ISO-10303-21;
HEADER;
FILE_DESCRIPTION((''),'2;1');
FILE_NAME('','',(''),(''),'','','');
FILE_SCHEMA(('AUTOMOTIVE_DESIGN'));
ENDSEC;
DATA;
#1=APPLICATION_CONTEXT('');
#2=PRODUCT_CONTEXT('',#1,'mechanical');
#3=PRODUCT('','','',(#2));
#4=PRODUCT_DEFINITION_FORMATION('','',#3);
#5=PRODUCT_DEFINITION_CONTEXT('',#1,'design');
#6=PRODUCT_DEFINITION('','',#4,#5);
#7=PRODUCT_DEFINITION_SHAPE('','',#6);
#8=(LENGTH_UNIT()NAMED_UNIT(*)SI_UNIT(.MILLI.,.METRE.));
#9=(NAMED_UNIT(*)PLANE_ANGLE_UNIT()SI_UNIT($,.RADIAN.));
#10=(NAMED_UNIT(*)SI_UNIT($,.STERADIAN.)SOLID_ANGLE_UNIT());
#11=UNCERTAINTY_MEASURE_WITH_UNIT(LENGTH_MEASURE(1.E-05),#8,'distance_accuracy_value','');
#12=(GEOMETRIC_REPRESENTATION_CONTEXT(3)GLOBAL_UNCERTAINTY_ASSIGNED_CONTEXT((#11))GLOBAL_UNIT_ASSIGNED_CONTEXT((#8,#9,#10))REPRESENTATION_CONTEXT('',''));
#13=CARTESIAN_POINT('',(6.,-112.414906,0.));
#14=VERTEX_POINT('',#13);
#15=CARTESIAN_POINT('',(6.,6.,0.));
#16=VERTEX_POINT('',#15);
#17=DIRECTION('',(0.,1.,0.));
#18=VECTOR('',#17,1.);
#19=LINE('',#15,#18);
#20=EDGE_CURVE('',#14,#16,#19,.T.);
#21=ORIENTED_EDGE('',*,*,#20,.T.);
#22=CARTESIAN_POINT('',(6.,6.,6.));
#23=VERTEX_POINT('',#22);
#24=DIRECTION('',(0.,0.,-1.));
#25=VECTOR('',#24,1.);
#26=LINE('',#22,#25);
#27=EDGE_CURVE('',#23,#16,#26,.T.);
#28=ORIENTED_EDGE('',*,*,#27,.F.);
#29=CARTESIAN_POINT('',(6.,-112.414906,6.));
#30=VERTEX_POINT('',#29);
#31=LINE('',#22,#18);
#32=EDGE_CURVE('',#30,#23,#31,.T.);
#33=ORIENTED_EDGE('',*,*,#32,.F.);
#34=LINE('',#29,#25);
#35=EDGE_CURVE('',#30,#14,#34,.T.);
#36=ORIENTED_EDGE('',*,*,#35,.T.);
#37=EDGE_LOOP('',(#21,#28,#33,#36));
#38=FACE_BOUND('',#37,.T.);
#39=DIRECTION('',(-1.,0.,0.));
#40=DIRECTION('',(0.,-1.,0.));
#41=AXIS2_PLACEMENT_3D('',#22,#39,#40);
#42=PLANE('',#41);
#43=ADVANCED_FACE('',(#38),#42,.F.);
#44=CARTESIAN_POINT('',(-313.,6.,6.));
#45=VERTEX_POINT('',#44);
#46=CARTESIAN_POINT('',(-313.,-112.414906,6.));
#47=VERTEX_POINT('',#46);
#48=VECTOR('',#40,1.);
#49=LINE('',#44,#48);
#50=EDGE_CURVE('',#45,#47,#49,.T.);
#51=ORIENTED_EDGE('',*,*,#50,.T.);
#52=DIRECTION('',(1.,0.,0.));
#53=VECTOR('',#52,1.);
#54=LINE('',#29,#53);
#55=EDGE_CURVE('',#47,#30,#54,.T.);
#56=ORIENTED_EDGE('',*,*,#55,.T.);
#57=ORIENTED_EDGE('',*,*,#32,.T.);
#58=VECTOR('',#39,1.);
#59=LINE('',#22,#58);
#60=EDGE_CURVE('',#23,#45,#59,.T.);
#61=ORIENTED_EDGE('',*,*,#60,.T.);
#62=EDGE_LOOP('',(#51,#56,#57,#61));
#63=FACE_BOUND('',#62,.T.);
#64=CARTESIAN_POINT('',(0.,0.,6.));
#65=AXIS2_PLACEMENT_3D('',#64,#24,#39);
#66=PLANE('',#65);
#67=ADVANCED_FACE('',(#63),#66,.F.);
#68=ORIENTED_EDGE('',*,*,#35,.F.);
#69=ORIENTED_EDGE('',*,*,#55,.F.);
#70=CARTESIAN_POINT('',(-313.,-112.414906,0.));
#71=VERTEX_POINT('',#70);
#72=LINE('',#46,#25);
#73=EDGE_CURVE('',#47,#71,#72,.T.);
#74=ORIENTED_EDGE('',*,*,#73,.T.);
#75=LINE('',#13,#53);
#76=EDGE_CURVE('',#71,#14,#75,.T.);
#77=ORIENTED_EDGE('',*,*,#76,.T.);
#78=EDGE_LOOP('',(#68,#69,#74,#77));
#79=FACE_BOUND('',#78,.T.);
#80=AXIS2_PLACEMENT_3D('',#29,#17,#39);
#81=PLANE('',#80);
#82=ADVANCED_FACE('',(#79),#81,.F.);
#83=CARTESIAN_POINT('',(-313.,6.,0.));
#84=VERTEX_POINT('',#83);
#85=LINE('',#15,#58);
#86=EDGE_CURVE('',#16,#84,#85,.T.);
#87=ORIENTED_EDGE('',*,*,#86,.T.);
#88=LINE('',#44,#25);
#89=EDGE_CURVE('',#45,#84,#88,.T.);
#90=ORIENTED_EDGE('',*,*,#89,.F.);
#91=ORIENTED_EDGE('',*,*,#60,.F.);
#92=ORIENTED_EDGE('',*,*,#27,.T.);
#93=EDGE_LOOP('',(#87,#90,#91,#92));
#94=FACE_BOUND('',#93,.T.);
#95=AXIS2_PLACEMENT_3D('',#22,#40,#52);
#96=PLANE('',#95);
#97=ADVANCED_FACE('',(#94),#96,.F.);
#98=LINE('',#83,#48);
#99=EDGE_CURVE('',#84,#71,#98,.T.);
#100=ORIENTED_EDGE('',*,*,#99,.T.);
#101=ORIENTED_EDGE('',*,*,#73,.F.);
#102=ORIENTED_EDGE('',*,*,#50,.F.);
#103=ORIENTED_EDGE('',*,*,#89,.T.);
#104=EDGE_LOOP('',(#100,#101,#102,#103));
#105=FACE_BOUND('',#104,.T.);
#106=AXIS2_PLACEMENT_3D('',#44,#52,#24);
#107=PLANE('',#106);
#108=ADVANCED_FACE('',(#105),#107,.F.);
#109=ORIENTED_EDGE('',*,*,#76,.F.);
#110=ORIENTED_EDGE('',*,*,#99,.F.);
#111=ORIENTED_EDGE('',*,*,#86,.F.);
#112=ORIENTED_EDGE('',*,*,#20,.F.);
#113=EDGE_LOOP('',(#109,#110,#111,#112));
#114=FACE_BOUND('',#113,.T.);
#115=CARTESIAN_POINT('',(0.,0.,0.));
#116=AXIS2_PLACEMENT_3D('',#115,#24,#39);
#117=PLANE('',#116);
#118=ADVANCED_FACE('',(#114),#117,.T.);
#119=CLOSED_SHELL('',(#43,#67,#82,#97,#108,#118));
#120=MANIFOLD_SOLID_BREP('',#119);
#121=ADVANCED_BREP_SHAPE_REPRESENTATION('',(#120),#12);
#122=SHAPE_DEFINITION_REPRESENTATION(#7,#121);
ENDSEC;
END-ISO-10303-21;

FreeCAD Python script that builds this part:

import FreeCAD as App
import Part
import Sketcher

V = App.Vector


def add_polygon(sketch, points):
    """Adds a closed chain of lines whose ends are joined by coincident constraints."""
    first, n = sketch.GeometryCount, len(points)
    for a, b in zip(points, points[1:] + points[:1]):
        sketch.addGeometry(Part.LineSegment(App.Vector(*a, 0), App.Vector(*b, 0)), False)
    for i in range(n):
        sketch.addConstraint(Sketcher.Constraint("Coincident", first + i, 2, first + (i + 1) % n, 1))

doc = App.newDocument("Part")
params = doc.addObject("Spreadsheet::Sheet", "Params")
for row, (alias, value) in enumerate([
    ("sketch1_width", "319 mm"),
    ("pad1_length", "6 mm"),
], start=1):
    params.set(f"A{row}", alias)
    params.set(f"B{row}", "=" + value)
    params.setAlias(f"B{row}", alias)

body = doc.addObject("PartDesign::Body", "Body")

# Sketch on XY plane
sketch1 = body.newObject("Sketcher::SketchObject", "Sketch")
sketch1.AttachmentSupport = (doc.getObject("XY_Plane"), [""])
sketch1.MapMode = "FlatFace"
add_polygon(sketch1, [(-313, 6), (-313, -112), (6, -112), (6, 6)])  # lines 0-3
sketch1.addConstraint([
    Sketcher.Constraint("Vertical", 0),
    Sketcher.Constraint("Horizontal", 1),
    Sketcher.Constraint("Vertical", 2),
    Sketcher.Constraint("Horizontal", 3),
    Sketcher.Constraint("DistanceX", 1, 1, 1, 2, 319.0),
    Sketcher.Constraint("DistanceX", 0, 2, -1, 1, 313.0),
    Sketcher.Constraint("DistanceY", -1, 1, 2, 2, 6.0),
    Sketcher.Constraint("DistanceY", 0, 2, 0, 1, 118.414906),
])
sketch1.setExpression("Constraints[8]", "Params.sketch1_width")
pad1 = body.newObject("PartDesign::Pad", "Pad")
pad1.Profile = sketch1
pad1.setExpression("Length", "Params.pad1_length")

doc.recompute()
